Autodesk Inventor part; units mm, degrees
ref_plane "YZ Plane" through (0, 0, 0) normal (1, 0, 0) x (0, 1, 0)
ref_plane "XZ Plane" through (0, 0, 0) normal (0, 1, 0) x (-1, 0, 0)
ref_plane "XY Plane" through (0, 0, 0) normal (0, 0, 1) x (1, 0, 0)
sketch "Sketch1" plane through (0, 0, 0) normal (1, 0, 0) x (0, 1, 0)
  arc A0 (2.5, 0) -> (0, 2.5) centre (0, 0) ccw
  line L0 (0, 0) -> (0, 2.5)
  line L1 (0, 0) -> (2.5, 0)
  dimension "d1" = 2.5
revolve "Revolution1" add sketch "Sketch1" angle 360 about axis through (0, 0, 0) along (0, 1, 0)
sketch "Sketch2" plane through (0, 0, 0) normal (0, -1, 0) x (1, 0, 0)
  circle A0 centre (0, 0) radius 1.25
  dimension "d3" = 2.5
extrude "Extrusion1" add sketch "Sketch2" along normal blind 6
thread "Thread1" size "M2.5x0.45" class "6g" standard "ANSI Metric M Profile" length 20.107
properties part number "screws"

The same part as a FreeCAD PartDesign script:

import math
import FreeCAD as App
import Part
import Sketcher
from FreeCAD import Vector

doc = App.newDocument("Part")
params = doc.addObject("Spreadsheet::Sheet", "Params")
for row, (alias, value) in enumerate([
    ("sketch1_radius", "2.5 mm"),
    ("revolution_angle", "360 deg"),
    ("sketch2_diameter", "2.5 mm"),
    ("pad1_length", "6 mm"),
], start=1):
    params.set(f"A{row}", alias)
    params.set(f"B{row}", "=" + value)
    params.setAlias(f"B{row}", alias)

body = doc.addObject("PartDesign::Body", "Body")

sketch1 = body.newObject("Sketcher::SketchObject", "Sketch")
sketch1.AttachmentSupport = (doc.getObject("YZ_Plane"), [""])
sketch1.MapMode = "FlatFace"
sketch1.addGeometry(Part.LineSegment(Vector(0, 0, 0), Vector(2.5, 0, 0)), False)
sketch1.addGeometry(Part.ArcOfCircle(Part.Circle(Vector(0, 0, 0), Vector(0, 0, 1), 2.5), math.radians(0), math.radians(90)), False)
sketch1.addGeometry(Part.LineSegment(Vector(0, 2.5, 0), Vector(0, 0, 0)), False)
sketch1.addConstraint(Sketcher.Constraint("Coincident", 0, 2, 1, 1))
sketch1.addConstraint(Sketcher.Constraint("Coincident", 1, 2, 2, 1))
sketch1.addConstraint(Sketcher.Constraint("Coincident", 2, 2, 0, 1))
sketch1.addConstraint(Sketcher.Constraint("Horizontal", 0))
sketch1.addConstraint(Sketcher.Constraint("Vertical", 2))
sketch1.addConstraint(Sketcher.Constraint("Coincident", 1, 3, -1, 1))
sketch1.addConstraint(Sketcher.Constraint("Coincident", 2, 2, -1, 1))
sketch1.addConstraint(Sketcher.Constraint("Radius", 1, 2.5))
sketch1.setExpression("Constraints[7]", "Params.sketch1_radius")
revolution = body.newObject("PartDesign::Revolution", "Revolution")
revolution.Profile = sketch1
revolution.ReferenceAxis = (sketch1, ["H_Axis"])
revolution.setExpression("Angle", "Params.revolution_angle")

sketch2 = body.newObject("Sketcher::SketchObject", "Sketch001")
sketch2.AttachmentSupport = (doc.getObject("XZ_Plane"), [""])
sketch2.MapMode = "FlatFace"
sketch2.addGeometry(Part.Circle(Vector(0, 0, 0), Vector(0, 0, 1), 1.25), False)
sketch2.addConstraint(Sketcher.Constraint("Coincident", 0, 3, -1, 1))
sketch2.addConstraint(Sketcher.Constraint("Diameter", 0, 2.5))
sketch2.setExpression("Constraints[1]", "Params.sketch2_diameter")
pad1 = body.newObject("PartDesign::Pad", "Pad")
pad1.Profile = sketch2
pad1.setExpression("Length", "Params.pad1_length")

doc.recompute()
